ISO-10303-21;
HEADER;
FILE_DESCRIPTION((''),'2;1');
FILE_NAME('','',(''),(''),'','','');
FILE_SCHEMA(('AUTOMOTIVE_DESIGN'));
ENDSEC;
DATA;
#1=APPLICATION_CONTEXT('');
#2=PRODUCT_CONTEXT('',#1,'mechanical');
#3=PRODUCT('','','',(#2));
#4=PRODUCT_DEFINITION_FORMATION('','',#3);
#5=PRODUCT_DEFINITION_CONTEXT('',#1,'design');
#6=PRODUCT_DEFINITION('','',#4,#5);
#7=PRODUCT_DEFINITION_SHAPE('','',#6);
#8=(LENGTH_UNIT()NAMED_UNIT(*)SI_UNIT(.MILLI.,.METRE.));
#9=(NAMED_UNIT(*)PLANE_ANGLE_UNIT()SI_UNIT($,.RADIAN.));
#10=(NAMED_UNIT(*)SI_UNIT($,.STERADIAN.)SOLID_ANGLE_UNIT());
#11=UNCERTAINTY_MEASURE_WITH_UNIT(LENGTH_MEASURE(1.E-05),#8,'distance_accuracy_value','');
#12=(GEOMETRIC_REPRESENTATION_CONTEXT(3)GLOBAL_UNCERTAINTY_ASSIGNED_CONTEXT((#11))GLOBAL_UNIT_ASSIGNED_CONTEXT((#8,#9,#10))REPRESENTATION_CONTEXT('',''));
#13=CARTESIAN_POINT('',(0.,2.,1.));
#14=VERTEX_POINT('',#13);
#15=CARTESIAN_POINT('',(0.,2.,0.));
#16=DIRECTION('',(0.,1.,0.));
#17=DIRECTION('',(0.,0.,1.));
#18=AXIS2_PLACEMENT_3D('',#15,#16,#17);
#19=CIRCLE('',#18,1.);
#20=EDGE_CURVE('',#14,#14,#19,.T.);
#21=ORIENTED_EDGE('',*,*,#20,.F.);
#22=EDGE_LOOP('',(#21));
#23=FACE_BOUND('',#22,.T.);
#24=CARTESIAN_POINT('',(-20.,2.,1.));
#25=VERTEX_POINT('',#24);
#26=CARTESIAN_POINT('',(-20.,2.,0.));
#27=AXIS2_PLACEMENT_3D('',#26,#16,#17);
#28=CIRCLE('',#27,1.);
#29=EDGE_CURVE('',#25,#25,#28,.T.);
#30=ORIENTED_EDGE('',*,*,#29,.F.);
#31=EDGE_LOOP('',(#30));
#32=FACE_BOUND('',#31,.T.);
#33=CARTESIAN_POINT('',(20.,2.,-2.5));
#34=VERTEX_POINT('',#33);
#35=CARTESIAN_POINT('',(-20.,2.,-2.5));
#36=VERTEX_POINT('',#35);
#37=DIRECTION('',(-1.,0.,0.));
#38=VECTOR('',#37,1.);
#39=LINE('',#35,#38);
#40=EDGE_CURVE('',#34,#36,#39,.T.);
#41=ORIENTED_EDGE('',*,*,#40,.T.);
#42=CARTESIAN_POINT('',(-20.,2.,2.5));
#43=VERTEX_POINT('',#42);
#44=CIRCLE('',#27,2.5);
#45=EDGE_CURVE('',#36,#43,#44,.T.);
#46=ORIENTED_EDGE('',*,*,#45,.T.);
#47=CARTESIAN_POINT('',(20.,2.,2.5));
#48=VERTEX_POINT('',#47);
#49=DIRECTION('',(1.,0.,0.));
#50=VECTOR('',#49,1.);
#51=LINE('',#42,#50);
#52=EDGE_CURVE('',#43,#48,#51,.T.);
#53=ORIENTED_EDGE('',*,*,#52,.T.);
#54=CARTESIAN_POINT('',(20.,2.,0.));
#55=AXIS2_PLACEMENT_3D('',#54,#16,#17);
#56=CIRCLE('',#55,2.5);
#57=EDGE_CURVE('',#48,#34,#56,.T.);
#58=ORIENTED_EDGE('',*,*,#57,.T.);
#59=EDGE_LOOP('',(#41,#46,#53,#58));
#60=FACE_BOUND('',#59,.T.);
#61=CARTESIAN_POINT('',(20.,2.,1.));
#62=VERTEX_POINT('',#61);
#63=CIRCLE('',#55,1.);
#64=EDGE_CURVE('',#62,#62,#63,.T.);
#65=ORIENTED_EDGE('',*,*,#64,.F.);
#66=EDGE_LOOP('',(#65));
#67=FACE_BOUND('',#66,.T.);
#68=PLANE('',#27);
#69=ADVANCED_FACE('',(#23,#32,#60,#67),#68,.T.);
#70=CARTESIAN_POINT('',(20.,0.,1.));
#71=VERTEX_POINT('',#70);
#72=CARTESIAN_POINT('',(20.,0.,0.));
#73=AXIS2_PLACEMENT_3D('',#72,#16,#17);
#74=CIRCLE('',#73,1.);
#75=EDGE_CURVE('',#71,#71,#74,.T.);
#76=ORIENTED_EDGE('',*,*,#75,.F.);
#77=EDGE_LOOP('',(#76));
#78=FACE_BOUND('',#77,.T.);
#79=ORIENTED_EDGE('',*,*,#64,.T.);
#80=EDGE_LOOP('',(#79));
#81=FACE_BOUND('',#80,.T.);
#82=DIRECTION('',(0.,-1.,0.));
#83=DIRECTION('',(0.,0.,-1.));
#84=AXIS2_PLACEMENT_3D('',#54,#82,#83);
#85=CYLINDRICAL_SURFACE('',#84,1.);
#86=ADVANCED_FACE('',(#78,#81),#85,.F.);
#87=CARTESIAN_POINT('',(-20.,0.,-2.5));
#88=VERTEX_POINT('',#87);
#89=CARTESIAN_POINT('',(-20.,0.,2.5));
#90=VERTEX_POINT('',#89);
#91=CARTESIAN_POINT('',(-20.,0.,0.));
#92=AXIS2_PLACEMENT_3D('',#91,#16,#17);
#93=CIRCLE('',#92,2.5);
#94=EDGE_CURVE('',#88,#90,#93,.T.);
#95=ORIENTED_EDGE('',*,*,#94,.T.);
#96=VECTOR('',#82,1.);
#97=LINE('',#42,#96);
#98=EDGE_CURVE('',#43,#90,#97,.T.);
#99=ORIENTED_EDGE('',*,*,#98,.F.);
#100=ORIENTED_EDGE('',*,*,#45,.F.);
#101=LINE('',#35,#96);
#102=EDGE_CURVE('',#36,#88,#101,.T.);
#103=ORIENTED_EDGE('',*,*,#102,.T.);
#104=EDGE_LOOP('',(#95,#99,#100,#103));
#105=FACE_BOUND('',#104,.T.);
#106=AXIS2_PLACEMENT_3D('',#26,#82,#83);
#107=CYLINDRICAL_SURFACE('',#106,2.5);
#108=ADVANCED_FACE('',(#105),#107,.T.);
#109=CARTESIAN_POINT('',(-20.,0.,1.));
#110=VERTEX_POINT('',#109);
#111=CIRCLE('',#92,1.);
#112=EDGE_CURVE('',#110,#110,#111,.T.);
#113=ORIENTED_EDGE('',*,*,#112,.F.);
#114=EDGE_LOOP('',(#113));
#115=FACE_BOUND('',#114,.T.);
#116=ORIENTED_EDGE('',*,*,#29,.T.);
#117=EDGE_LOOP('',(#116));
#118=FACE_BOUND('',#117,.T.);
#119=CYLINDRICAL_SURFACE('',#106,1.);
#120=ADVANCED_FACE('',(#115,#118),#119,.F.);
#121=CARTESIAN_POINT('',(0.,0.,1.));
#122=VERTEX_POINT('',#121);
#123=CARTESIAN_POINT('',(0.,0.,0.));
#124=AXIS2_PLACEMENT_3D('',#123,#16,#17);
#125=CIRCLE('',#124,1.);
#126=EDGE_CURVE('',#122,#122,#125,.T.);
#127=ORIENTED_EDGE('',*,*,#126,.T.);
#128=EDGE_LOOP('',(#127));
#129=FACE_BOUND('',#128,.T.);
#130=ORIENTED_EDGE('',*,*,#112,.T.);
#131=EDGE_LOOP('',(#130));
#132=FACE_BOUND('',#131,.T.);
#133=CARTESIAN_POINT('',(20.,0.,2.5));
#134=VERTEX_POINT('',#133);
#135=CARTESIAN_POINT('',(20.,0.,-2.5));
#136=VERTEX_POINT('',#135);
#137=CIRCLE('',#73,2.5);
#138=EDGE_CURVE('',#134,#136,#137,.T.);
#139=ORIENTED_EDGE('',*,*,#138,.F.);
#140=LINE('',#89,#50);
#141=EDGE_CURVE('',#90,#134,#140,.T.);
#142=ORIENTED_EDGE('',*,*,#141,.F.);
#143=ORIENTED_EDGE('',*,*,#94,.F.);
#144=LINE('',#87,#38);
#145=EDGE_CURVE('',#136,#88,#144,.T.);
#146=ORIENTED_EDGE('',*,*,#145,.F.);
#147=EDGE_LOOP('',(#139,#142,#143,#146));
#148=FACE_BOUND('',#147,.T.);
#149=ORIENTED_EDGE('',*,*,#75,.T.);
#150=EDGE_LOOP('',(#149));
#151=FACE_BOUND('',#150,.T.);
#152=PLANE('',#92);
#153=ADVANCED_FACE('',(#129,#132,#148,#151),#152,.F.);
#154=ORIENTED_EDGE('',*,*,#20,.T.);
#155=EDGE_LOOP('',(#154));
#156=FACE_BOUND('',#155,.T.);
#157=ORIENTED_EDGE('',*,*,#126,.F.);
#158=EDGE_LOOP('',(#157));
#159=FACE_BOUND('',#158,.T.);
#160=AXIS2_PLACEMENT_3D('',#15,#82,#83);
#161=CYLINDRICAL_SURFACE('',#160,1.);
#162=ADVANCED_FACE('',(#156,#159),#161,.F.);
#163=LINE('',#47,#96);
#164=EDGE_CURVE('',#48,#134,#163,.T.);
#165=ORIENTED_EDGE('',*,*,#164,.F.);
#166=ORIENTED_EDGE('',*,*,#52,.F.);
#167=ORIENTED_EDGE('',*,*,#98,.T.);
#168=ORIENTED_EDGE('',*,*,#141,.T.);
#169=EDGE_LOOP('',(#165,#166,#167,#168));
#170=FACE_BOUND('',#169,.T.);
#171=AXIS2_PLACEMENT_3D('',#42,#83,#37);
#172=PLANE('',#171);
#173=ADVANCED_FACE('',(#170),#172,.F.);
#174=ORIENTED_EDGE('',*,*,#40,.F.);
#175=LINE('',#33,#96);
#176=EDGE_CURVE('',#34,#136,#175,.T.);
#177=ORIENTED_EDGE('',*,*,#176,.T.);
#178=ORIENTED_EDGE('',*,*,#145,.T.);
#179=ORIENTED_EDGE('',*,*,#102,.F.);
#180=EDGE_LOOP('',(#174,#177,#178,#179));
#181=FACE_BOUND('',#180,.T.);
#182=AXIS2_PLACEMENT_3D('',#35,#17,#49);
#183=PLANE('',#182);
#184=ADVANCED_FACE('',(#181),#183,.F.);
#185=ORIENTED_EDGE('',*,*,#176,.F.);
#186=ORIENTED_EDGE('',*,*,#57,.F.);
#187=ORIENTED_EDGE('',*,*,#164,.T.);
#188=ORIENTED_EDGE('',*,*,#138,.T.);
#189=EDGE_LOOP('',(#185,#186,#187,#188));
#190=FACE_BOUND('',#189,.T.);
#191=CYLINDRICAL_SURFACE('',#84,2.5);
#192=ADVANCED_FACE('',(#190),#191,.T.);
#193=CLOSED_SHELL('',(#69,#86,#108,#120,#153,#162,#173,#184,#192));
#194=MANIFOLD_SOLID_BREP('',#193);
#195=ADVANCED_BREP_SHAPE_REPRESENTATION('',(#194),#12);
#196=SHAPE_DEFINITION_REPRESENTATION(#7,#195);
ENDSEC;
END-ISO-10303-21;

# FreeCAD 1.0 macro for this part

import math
import FreeCAD as App
import Part
import Sketcher

V = App.Vector
Q = App.Units.Quantity

doc = App.newDocument("Part")
body = doc.addObject("PartDesign::Body", "Body")

# Sketch on XZ plane
sketch1 = doc.addObject("Sketcher::SketchObject", "Sketch")
body.addObject(sketch1)
sketch1.AttachmentSupport = (doc.XZ_Plane, [""])
sketch1.MapMode = "FlatFace"
sketch1.addGeometry([
    Part.LineSegment(V(20, -2.5, 0), V(-20, -2.5, 0)),  # 0
    Part.ArcOfCircle(Part.Circle(V(-20, 0, 0), V(0, 0, 1), 2.5), math.radians(90), math.radians(270)),  # 1
    Part.LineSegment(V(-20, 2.5, 0), V(20, 2.5, 0)),  # 2
    Part.ArcOfCircle(Part.Circle(V(20, 0, 0), V(0, 0, 1), 2.5), math.radians(-90), math.radians(90)),  # 3
    Part.Circle(V(20, 0, 0), V(0, 0, 1), 1),  # 4
    Part.Circle(V(0, 0, 0), V(0, 0, 1), 1),  # 5
    Part.Circle(V(-20, 0, 0), V(0, 0, 1), 1),  # 6
], False)
sketch1.addConstraint([
    Sketcher.Constraint("Tangent", 0, 2, 1, 2),
    Sketcher.Constraint("Tangent", 1, 1, 2, 1),
    Sketcher.Constraint("Tangent", 2, 2, 3, 2),
    Sketcher.Constraint("Tangent", 3, 1, 0, 1),
    Sketcher.Constraint("Horizontal", 0),
    Sketcher.Constraint("Horizontal", 2),
    Sketcher.Constraint("Coincident", 5, 3, -1, 1),
    Sketcher.Constraint("Coincident", 4, 3, 3, 3),
    Sketcher.Constraint("Coincident", 6, 3, 1, 3),
    Sketcher.Constraint("Equal", 4, 5),
    Sketcher.Constraint("Equal", 5, 6),
    Sketcher.Constraint("Symmetric", 1, 3, 3, 3, -1, 1),
    Sketcher.Constraint("Diameter", 4, Q("2 mm")),
    Sketcher.Constraint("Radius", 1, Q("2.5 mm")),
    Sketcher.Constraint("DistanceX", 0, 2, 0, 1, Q("40 mm")),
])
pad1 = doc.addObject("PartDesign::Pad", "Pad")
body.addObject(pad1)
pad1.Profile = sketch1
pad1.Length = 2
pad1.Reversed = True

doc.recompute()
